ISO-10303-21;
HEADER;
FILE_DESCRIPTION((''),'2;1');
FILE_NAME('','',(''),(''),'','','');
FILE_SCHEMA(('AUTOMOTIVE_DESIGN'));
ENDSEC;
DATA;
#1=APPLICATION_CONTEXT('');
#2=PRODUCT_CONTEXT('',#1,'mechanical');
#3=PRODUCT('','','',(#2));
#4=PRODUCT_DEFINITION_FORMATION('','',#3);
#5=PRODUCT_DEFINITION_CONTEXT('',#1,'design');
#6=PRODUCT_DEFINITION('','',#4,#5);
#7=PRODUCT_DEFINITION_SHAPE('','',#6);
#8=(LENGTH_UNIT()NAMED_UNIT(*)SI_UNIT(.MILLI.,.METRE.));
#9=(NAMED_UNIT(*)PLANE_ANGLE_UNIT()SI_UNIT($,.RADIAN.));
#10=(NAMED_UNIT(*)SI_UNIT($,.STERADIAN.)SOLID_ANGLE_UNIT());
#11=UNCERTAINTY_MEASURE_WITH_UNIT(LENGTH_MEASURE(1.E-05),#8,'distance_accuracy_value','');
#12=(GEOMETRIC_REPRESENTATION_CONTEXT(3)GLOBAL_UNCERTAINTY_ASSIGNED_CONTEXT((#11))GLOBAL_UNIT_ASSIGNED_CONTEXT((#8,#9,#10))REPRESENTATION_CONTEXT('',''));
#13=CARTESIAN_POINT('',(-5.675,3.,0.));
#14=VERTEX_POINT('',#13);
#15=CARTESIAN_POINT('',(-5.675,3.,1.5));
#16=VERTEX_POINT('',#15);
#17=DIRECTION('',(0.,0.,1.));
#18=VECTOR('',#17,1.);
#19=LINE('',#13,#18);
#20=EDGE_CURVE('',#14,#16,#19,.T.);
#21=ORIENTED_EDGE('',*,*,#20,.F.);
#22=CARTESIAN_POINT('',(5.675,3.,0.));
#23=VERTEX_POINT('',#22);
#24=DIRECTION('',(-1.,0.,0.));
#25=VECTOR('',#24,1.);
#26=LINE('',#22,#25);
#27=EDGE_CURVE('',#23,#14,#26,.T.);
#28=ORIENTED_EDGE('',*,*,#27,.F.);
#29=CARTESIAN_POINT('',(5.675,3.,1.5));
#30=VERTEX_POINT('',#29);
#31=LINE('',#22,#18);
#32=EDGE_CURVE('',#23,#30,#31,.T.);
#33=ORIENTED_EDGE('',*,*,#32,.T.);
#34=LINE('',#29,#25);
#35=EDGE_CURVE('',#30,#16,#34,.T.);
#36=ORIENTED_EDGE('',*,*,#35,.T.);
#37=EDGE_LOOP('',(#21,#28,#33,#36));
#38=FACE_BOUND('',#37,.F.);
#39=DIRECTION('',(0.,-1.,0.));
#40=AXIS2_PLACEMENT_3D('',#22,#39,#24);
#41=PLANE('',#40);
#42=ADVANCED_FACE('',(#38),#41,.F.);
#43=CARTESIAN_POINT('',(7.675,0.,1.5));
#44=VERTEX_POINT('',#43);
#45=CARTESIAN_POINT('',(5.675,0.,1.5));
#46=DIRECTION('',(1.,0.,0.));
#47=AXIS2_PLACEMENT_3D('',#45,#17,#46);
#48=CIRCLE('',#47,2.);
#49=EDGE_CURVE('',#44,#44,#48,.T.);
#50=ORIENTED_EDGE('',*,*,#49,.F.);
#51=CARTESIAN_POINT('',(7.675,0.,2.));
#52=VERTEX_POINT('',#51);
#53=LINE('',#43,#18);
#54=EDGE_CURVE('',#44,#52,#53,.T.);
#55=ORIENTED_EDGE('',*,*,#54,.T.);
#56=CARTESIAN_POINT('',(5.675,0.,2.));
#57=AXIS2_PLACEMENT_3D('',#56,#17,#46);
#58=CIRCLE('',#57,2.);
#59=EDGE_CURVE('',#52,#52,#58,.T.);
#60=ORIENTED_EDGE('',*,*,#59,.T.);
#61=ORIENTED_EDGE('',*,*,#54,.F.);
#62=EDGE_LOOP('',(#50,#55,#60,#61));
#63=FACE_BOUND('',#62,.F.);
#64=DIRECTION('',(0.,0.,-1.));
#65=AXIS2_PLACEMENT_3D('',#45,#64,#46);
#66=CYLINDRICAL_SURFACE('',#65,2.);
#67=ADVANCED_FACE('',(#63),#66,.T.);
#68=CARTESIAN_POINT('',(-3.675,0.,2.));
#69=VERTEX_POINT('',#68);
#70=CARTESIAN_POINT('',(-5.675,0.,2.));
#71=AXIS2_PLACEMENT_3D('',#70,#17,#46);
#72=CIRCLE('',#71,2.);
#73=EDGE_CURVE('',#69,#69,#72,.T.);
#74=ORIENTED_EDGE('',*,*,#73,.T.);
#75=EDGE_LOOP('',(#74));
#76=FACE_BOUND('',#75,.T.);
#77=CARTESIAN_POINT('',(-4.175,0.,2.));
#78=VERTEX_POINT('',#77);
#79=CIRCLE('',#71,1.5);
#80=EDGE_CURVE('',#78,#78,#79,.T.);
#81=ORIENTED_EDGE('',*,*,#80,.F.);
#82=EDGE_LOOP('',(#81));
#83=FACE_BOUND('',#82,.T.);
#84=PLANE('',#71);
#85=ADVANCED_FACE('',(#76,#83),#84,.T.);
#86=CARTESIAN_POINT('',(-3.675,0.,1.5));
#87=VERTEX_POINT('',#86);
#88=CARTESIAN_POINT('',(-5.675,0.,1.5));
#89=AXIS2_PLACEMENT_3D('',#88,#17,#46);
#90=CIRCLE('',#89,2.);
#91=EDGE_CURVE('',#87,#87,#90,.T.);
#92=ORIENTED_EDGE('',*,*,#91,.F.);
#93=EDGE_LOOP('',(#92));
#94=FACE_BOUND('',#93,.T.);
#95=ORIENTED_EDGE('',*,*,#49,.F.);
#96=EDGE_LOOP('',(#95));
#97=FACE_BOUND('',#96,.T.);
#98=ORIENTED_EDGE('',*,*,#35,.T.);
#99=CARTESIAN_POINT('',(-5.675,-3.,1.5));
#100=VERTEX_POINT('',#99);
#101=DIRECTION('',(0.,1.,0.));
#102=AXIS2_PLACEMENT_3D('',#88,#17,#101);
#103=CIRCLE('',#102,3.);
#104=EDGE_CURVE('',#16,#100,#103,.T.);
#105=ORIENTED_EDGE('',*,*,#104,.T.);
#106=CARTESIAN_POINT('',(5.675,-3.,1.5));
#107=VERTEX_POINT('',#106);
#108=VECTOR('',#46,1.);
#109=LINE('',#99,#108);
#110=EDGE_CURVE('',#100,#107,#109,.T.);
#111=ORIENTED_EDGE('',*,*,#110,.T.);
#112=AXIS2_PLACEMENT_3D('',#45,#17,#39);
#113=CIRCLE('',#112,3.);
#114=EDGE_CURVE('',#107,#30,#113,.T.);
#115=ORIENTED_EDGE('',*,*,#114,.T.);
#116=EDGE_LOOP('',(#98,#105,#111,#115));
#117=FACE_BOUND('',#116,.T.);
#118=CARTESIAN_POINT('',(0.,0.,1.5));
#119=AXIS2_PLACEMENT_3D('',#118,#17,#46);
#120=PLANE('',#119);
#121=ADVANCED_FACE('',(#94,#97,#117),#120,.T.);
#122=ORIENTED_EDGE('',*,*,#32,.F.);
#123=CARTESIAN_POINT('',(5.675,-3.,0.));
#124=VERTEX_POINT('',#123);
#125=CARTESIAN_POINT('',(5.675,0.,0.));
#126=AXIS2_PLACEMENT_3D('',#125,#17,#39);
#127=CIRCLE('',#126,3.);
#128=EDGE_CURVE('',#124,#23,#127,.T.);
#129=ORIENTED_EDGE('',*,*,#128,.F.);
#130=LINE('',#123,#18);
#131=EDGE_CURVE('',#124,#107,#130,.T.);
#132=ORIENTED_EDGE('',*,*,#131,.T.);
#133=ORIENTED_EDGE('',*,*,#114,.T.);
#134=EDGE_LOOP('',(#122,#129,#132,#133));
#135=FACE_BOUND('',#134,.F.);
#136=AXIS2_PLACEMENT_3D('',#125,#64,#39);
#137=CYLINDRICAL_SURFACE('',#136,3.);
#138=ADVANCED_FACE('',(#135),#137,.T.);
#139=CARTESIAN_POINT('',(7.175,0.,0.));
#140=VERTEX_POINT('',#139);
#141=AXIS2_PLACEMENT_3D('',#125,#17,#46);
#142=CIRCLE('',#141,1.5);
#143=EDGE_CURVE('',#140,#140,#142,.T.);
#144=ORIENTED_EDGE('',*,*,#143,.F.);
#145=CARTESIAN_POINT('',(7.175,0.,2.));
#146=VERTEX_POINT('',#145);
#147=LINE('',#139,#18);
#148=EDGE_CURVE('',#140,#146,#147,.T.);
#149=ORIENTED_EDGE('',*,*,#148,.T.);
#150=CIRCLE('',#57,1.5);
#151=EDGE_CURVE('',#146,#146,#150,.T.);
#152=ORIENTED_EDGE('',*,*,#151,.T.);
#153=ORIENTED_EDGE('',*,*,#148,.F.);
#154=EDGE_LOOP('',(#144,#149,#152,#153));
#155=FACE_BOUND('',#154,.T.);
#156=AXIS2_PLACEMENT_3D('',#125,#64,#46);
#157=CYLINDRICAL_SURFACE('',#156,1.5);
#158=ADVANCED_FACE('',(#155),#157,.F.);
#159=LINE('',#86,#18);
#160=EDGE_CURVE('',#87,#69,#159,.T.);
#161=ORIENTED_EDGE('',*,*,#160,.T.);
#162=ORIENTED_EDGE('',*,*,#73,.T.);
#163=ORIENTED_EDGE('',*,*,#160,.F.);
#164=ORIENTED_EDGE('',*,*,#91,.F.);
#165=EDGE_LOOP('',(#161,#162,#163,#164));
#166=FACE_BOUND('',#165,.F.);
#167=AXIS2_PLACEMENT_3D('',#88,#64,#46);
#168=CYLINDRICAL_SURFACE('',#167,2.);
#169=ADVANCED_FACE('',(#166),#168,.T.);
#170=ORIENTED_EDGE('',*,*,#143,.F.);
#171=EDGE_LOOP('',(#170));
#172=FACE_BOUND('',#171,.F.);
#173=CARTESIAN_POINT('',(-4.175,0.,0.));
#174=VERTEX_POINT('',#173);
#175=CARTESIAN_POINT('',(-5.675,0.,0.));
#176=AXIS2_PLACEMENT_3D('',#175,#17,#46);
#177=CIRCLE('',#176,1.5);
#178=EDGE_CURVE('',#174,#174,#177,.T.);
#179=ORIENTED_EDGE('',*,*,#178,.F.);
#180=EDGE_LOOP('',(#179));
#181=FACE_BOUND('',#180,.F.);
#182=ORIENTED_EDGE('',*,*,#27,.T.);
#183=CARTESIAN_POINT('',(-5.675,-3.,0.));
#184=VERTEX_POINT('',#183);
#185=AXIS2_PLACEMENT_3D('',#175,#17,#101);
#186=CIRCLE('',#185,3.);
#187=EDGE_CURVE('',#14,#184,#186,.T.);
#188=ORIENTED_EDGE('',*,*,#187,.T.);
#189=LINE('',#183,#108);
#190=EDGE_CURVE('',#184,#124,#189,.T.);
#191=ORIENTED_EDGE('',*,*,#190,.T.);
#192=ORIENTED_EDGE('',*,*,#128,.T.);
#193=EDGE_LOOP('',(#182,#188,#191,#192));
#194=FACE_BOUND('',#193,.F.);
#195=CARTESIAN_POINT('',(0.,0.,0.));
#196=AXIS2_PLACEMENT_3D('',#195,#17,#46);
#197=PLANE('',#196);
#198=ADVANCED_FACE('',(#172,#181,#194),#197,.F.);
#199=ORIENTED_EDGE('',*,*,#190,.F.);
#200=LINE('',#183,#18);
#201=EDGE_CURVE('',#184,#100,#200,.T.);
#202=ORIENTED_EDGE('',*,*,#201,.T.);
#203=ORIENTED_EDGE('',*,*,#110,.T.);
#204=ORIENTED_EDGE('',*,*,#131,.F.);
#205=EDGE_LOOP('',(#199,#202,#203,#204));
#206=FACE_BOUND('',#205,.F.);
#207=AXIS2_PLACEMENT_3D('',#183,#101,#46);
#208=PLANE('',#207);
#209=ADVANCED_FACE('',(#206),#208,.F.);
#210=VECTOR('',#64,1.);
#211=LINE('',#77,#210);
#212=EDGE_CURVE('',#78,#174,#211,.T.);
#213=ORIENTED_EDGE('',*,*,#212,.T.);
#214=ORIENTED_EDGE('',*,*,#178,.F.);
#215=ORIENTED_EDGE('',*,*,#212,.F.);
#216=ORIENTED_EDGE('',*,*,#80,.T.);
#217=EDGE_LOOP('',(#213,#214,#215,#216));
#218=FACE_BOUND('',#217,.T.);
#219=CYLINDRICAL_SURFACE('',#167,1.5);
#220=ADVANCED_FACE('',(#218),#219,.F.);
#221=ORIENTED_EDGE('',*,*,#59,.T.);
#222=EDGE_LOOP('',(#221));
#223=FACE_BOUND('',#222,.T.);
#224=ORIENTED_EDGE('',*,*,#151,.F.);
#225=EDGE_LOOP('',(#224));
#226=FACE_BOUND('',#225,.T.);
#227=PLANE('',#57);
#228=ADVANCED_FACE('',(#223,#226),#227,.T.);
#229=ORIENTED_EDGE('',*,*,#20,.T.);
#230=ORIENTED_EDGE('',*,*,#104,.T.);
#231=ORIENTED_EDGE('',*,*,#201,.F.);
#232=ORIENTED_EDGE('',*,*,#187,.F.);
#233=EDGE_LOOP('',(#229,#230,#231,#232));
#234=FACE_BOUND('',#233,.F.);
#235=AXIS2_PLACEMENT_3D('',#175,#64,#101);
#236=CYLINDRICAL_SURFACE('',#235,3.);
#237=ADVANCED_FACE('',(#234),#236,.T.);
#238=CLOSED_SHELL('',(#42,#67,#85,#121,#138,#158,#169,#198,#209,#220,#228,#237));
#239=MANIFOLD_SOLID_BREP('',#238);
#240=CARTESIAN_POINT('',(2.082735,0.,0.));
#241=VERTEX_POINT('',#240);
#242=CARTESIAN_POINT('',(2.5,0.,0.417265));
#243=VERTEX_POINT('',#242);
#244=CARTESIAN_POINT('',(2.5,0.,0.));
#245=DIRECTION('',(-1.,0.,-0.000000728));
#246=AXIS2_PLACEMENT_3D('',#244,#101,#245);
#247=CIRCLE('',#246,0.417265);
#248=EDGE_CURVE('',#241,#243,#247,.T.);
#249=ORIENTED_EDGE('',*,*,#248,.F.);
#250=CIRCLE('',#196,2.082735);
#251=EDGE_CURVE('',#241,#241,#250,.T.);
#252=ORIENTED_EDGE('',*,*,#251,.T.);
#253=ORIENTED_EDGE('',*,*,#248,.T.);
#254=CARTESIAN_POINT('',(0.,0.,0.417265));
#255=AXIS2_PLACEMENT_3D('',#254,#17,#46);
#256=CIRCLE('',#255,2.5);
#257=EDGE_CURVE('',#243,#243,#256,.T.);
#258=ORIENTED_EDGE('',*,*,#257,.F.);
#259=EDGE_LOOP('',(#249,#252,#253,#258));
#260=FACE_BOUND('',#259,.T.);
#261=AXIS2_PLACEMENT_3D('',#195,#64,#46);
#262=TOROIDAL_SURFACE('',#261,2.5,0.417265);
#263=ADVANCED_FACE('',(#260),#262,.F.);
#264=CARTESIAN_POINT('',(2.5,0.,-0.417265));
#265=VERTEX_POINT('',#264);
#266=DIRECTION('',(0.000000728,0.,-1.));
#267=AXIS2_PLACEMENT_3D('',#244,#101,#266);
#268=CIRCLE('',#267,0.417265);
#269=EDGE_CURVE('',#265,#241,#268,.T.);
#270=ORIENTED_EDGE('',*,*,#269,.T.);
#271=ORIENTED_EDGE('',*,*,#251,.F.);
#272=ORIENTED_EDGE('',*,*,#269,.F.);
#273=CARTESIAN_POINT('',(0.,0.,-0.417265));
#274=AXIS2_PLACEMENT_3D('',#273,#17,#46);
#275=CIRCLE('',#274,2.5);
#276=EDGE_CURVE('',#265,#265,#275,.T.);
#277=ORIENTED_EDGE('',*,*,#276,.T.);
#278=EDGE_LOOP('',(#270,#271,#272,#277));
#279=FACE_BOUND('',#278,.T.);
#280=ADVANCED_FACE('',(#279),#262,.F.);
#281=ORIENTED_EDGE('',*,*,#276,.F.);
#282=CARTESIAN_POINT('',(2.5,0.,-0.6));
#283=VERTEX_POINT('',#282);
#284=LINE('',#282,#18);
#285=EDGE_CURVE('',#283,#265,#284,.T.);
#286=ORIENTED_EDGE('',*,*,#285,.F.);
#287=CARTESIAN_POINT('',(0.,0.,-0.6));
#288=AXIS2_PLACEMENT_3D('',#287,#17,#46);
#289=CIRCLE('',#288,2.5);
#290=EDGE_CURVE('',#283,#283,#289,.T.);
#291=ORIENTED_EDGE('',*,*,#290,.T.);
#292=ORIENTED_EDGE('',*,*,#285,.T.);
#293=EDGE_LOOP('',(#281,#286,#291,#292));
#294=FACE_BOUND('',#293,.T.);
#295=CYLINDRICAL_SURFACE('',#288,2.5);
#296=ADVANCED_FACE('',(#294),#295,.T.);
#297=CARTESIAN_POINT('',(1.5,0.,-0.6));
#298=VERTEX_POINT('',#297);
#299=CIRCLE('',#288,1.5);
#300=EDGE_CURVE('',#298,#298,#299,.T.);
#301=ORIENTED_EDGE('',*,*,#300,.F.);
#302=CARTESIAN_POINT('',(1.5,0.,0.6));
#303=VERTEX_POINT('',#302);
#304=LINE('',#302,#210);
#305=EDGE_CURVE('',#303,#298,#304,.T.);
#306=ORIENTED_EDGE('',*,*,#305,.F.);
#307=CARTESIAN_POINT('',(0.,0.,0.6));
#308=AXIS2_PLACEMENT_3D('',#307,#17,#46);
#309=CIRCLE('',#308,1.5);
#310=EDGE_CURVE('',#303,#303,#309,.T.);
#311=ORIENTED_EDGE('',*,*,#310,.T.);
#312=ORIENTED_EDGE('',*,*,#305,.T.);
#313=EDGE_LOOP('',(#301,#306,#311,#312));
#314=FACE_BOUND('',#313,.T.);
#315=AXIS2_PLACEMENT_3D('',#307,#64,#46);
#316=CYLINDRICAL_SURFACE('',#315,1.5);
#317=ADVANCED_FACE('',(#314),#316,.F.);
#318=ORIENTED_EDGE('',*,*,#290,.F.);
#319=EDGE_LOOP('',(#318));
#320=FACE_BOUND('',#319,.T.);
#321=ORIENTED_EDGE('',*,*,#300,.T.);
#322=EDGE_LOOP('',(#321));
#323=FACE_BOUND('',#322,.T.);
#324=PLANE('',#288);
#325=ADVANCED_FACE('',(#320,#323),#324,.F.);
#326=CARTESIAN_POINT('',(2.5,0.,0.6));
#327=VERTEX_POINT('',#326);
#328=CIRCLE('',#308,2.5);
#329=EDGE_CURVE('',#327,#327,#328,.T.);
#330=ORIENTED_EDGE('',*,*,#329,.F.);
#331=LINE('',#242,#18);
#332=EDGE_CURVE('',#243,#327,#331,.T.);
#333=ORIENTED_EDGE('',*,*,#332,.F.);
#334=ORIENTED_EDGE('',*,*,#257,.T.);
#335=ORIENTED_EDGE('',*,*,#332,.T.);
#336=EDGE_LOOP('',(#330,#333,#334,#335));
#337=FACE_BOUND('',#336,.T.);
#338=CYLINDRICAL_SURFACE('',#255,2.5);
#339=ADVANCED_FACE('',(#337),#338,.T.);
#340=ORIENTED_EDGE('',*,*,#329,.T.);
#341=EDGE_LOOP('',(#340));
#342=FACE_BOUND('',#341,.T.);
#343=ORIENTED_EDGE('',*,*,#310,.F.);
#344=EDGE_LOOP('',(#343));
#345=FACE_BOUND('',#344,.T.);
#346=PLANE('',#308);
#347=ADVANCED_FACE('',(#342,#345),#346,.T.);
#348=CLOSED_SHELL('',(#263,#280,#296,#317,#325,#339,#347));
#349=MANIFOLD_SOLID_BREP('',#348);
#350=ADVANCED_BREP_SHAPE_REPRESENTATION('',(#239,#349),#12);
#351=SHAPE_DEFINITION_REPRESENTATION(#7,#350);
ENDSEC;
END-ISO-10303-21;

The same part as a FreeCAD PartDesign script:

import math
import FreeCAD as App
import Part
import Sketcher

V = App.Vector

doc = App.newDocument("Part")
body = doc.addObject("PartDesign::Body", "Body")

sketch1 = body.newObject("Sketcher::SketchObject", "Sketch")
sketch1.AttachmentSupport = (doc.getObject("XY_Plane"), [""])
sketch1.MapMode = "FlatFace"
sketch1.addGeometry([
    Part.ArcOfCircle(Part.Circle(V(-5.7, 0, 0), V(0, 0, 1), 3), math.radians(90), math.radians(270)),
    Part.LineSegment(V(-5.7, -3, 0), V(5.7, -3, 0)),
    Part.ArcOfCircle(Part.Circle(V(5.7, 0, 0), V(0, 0, 1), 3), math.radians(-90), math.radians(90)),
    Part.LineSegment(V(5.7, 3, 0), V(-5.7, 3, 0)),
    Part.Circle(V(-5.7, 0, 0), V(0, 0, 1), 1.5),
    Part.Circle(V(5.7, 0, 0), V(0, 0, 1), 1.5),
], False)
sketch1.addConstraint([
    Sketcher.Constraint("Tangent", 0, 2, 1, 1),
    Sketcher.Constraint("Tangent", 1, 2, 2, 1),
    Sketcher.Constraint("Tangent", 2, 2, 3, 1),
    Sketcher.Constraint("Tangent", 3, 2, 0, 1),
    Sketcher.Constraint("Horizontal", 1),
    Sketcher.Constraint("Horizontal", 3),
    Sketcher.Constraint("Coincident", 4, 3, 0, 3),
    Sketcher.Constraint("Coincident", 5, 3, 2, 3),
    Sketcher.Constraint("Equal", 4, 5),
    Sketcher.Constraint("Symmetric", 0, 3, 2, 3, -1, 1),
    Sketcher.Constraint("Diameter", 4, 3.0),
    Sketcher.Constraint("Radius", 0, 3.0),
    Sketcher.Constraint("DistanceX", 1, 1, 1, 2, 11.35),
])
pad1 = body.newObject("PartDesign::Pad", "Pad")
pad1.Profile = sketch1
pad1.Length = 1.5

sketch2 = body.newObject("Sketcher::SketchObject", "Sketch001")
sketch2.AttachmentSupport = (doc.getObject("XY_Plane"), [""])
sketch2.MapMode = "FlatFace"
sketch2.AttachmentOffset = App.Placement(V(0, 0, 1.5), App.Rotation())
sketch2.addGeometry([
    Part.Circle(V(-5.7, 0, 0), V(0, 0, 1), 2),
    Part.Circle(V(-5.7, 0, 0), V(0, 0, 1), 1.5),
    Part.Circle(V(5.7, 0, 0), V(0, 0, 1), 2),
    Part.Circle(V(5.7, 0, 0), V(0, 0, 1), 1.5),
], False)
sketch2.addConstraint([
    Sketcher.Constraint("Coincident", 1, 3, 0, 3),
    Sketcher.Constraint("Coincident", 3, 3, 2, 3),
    Sketcher.Constraint("Equal", 0, 2),
    Sketcher.Constraint("Equal", 1, 3),
    Sketcher.Constraint("Symmetric", 0, 3, 2, 3, -1, 1),
    Sketcher.Constraint("PointOnObject", 0, 3, -1),
    Sketcher.Constraint("Diameter", 0, 4.0),
    Sketcher.Constraint("Diameter", 1, 3.0),
    Sketcher.Constraint("DistanceX", 0, 3, 2, 3, 11.35),
])
pad2 = body.newObject("PartDesign::Pad", "Pad001")
pad2.Profile = sketch2
pad2.Length = 0.5
body2 = doc.addObject("PartDesign::Body", "Body001")

sketch3 = body2.newObject("Sketcher::SketchObject", "Sketch002")
sketch3.AttachmentSupport = (doc.getObject("XZ_Plane001"), [""])
sketch3.MapMode = "FlatFace"
sketch3.addGeometry([
    Part.LineSegment(V(1.5, 0.6, 0), V(1.5, -0.6, 0)),
    Part.LineSegment(V(1.5, -0.6, 0), V(2.5, -0.6, 0)),
    Part.LineSegment(V(2.5, -0.6, 0), V(2.5, -0.42, 0)),
    Part.ArcOfCircle(Part.Circle(V(2.5, 0, 0), V(0, 0, 1), 0.42), math.radians(180), math.radians(270)),
    Part.ArcOfCircle(Part.Circle(V(2.5, 0, 0), V(0, 0, 1), 0.42), math.radians(90), math.radians(180)),
    Part.LineSegment(V(2.5, 0.42, 0), V(2.5, 0.6, 0)),
    Part.LineSegment(V(2.5, 0.6, 0), V(1.5, 0.6, 0)),
], False)
sketch3.addConstraint([
    Sketcher.Constraint("Coincident", 0, 2, 1, 1),
    Sketcher.Constraint("Coincident", 1, 2, 2, 1),
    Sketcher.Constraint("Coincident", 2, 2, 3, 2),
    Sketcher.Constraint("Tangent", 3, 1, 4, 2),
    Sketcher.Constraint("Coincident", 4, 1, 5, 1),
    Sketcher.Constraint("Coincident", 5, 2, 6, 1),
    Sketcher.Constraint("Coincident", 6, 2, 0, 1),
    Sketcher.Constraint("Vertical", 0),
    Sketcher.Constraint("Horizontal", 1),
    Sketcher.Constraint("Vertical", 2),
    Sketcher.Constraint("Vertical", 5),
    Sketcher.Constraint("Horizontal", 6),
    Sketcher.Constraint("Equal", 3, 4),
    Sketcher.Constraint("Symmetric", 2, 2, 4, 1, -1),
    Sketcher.Constraint("PointOnObject", 3, 1, -1),
    Sketcher.Constraint("Vertical", 4, 3, 1, 2),
    Sketcher.Constraint("Equal", 2, 5),
    Sketcher.Constraint("DistanceX", 1, 1, 1, 2, 1.0),
    Sketcher.Constraint("DistanceY", 0, 2, 0, 1, 1.2),
    Sketcher.Constraint("DistanceX", -1, 1, 3, 3, 2.5),
    Sketcher.Constraint("Radius", 3, 0.417265),
])
revolution = body2.newObject("PartDesign::Revolution", "Revolution")
revolution.Profile = sketch3
revolution.ReferenceAxis = (sketch3, ["V_Axis"])
revolution.Angle = 360

doc.recompute()
